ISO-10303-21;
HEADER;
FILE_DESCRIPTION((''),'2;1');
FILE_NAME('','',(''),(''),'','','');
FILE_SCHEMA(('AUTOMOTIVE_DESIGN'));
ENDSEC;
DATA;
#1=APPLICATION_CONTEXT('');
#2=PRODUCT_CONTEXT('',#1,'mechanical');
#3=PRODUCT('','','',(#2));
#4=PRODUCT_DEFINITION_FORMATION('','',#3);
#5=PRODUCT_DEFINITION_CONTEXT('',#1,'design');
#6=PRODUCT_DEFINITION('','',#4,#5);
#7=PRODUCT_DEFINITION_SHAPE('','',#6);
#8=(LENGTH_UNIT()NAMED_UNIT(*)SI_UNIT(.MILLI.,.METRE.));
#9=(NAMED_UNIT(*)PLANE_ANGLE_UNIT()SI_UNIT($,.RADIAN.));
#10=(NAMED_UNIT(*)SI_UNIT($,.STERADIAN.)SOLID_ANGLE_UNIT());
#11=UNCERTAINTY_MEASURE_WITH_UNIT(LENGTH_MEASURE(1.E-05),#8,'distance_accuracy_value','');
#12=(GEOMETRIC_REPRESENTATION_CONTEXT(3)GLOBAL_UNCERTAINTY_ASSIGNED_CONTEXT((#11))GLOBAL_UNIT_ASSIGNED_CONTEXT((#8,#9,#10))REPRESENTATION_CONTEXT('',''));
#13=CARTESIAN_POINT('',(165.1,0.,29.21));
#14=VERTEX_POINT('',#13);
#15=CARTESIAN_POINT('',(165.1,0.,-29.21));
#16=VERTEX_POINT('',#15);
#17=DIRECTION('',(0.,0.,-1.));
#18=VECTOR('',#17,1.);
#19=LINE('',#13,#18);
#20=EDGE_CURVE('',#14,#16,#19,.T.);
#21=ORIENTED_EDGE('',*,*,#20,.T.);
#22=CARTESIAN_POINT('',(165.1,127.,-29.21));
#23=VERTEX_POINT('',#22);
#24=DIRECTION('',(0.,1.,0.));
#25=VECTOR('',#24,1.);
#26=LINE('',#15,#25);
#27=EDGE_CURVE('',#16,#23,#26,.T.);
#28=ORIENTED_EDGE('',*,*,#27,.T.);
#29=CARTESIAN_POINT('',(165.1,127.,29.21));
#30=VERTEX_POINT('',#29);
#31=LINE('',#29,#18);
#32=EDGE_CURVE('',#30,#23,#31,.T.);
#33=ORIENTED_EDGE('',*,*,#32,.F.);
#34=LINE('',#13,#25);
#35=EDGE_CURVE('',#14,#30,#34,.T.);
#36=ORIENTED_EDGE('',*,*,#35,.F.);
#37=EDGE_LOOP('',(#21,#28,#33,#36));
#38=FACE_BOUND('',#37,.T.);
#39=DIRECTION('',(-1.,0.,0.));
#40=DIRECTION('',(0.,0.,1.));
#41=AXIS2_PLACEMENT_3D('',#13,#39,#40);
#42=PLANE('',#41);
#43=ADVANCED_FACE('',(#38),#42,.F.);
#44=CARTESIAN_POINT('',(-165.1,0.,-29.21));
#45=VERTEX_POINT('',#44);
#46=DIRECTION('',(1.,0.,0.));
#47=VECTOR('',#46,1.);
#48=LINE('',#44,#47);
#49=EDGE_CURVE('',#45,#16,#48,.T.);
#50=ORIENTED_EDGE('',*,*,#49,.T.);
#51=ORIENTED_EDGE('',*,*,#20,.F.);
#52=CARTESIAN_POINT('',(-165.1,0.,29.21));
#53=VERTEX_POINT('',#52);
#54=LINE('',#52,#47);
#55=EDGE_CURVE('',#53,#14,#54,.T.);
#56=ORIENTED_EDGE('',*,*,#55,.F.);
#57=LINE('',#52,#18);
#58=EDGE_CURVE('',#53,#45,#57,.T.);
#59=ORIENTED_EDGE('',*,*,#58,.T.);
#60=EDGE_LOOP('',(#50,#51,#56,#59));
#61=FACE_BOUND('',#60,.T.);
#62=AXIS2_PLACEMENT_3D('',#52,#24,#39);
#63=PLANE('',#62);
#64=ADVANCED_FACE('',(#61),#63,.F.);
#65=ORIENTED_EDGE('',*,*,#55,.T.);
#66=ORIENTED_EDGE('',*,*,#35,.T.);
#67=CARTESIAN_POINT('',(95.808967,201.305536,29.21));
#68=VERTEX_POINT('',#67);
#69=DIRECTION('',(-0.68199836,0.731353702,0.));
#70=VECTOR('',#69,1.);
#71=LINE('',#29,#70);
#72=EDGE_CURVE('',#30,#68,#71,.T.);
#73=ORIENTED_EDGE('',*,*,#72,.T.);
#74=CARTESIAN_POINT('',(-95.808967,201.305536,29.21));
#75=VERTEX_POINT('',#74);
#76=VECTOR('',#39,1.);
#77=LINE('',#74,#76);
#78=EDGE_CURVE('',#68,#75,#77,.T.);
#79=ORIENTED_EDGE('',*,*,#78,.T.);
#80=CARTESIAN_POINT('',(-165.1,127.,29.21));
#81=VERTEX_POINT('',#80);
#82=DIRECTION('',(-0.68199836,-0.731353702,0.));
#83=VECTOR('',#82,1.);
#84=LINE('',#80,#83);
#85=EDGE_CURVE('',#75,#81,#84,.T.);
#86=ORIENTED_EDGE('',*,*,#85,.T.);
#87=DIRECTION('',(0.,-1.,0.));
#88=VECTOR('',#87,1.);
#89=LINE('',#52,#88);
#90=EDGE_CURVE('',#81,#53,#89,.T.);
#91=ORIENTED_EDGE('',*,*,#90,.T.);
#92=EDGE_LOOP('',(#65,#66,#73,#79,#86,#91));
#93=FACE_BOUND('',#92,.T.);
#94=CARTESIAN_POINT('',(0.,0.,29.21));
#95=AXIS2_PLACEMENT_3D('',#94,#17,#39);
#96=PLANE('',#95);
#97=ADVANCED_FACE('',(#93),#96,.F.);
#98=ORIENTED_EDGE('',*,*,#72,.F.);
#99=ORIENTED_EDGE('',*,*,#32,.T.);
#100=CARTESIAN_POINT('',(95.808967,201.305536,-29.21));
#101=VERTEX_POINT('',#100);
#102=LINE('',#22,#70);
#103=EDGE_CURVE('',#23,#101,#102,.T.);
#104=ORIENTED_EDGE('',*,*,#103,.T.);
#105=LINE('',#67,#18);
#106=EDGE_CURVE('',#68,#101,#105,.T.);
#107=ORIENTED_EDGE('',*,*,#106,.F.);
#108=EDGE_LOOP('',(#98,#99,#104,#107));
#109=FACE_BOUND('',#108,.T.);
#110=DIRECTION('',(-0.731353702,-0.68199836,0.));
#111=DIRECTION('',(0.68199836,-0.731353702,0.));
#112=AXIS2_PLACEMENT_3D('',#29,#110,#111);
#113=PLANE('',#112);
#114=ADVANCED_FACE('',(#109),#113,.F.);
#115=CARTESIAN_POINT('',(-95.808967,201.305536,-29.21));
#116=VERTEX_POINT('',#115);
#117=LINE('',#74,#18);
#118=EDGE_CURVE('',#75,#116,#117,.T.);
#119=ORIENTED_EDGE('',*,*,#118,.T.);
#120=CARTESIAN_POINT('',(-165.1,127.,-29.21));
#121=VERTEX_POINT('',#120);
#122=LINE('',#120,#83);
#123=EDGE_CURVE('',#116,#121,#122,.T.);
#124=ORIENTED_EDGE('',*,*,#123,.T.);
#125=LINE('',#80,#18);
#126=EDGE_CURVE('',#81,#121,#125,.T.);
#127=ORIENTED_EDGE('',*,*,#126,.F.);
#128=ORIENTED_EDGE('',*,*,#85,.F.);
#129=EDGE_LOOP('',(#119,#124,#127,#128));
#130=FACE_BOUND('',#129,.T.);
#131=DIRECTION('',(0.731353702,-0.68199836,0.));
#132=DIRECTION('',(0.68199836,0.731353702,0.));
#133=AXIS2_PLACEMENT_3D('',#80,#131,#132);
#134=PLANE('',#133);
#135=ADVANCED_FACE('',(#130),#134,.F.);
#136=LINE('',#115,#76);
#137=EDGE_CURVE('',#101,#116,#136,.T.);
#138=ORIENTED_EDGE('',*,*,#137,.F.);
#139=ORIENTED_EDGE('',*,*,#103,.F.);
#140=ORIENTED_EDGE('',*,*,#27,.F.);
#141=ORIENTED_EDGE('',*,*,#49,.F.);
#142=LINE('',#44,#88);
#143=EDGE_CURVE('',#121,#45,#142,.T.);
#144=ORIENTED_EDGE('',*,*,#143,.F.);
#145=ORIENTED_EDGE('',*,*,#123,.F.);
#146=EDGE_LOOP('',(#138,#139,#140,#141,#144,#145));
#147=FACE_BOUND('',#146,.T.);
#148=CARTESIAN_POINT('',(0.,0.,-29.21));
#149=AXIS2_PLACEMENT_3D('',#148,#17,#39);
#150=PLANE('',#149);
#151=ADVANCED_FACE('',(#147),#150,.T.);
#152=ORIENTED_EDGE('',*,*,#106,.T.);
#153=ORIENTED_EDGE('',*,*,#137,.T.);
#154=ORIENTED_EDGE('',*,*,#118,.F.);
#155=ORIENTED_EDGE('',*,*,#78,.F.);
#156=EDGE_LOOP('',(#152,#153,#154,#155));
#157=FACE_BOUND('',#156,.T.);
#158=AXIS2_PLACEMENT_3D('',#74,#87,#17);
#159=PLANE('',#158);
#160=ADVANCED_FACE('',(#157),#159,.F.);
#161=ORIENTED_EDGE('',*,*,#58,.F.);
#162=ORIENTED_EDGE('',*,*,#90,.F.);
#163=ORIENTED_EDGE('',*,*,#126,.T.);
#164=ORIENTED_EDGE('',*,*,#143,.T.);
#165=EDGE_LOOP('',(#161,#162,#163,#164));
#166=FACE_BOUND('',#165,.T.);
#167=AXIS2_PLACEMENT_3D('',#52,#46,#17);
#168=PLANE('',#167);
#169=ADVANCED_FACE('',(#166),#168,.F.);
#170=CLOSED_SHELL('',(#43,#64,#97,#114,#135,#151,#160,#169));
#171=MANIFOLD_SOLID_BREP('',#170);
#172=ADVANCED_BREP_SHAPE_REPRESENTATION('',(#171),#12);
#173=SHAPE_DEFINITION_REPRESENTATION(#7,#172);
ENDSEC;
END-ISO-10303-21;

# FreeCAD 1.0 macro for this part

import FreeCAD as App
import Part
import Sketcher

V = App.Vector
Q = App.Units.Quantity


def add_polygon(sketch, points):
    """Adds a closed chain of lines whose ends are joined by coincident constraints."""
    first, n = sketch.GeometryCount, len(points)
    for a, b in zip(points, points[1:] + points[:1]):
        sketch.addGeometry(Part.LineSegment(App.Vector(*a, 0), App.Vector(*b, 0)), False)
    for i in range(n):
        sketch.addConstraint(Sketcher.Constraint("Coincident", first + i, 2, first + (i + 1) % n, 1))

doc = App.newDocument("Part")
body = doc.addObject("PartDesign::Body", "Body")

# Sketch on XY plane
sketch1 = body.newObject("Sketcher::SketchObject", "Sketch")
sketch1.AttachmentSupport = (doc.getObject("XY_Plane"), [""])
sketch1.MapMode = "FlatFace"
add_polygon(sketch1, [(-165, 0), (165, 0), (165, 127), (96, 201), (-96, 201), (-165, 127)])  # lines 0-5
sketch1.addConstraint([
    Sketcher.Constraint("Horizontal", 0),
    Sketcher.Constraint("Vertical", 1),
    Sketcher.Constraint("Horizontal", 3),
    Sketcher.Constraint("Vertical", 5),
    Sketcher.Constraint("Symmetric", 0, 2, 5, 2, -1, 1),
    Sketcher.Constraint("Horizontal", 1, 2, 4, 2),
    Sketcher.Constraint("Equal", 2, 4),
    Sketcher.Constraint("DistanceX", 0, 1, 0, 2, Q("13 in")),
    Sketcher.Constraint("DistanceY", 1, 1, 1, 2, Q("5 in")),
    Sketcher.Constraint("Distance", 2, Q("4 in")),
    Sketcher.Constraint("Angle", 2, Q("133 deg")),
])
pad1 = body.newObject("PartDesign::Pad", "Pad")
pad1.Profile = sketch1
pad1.Length = Q("2.3 in")
pad1.Midplane = True

doc.recompute()
